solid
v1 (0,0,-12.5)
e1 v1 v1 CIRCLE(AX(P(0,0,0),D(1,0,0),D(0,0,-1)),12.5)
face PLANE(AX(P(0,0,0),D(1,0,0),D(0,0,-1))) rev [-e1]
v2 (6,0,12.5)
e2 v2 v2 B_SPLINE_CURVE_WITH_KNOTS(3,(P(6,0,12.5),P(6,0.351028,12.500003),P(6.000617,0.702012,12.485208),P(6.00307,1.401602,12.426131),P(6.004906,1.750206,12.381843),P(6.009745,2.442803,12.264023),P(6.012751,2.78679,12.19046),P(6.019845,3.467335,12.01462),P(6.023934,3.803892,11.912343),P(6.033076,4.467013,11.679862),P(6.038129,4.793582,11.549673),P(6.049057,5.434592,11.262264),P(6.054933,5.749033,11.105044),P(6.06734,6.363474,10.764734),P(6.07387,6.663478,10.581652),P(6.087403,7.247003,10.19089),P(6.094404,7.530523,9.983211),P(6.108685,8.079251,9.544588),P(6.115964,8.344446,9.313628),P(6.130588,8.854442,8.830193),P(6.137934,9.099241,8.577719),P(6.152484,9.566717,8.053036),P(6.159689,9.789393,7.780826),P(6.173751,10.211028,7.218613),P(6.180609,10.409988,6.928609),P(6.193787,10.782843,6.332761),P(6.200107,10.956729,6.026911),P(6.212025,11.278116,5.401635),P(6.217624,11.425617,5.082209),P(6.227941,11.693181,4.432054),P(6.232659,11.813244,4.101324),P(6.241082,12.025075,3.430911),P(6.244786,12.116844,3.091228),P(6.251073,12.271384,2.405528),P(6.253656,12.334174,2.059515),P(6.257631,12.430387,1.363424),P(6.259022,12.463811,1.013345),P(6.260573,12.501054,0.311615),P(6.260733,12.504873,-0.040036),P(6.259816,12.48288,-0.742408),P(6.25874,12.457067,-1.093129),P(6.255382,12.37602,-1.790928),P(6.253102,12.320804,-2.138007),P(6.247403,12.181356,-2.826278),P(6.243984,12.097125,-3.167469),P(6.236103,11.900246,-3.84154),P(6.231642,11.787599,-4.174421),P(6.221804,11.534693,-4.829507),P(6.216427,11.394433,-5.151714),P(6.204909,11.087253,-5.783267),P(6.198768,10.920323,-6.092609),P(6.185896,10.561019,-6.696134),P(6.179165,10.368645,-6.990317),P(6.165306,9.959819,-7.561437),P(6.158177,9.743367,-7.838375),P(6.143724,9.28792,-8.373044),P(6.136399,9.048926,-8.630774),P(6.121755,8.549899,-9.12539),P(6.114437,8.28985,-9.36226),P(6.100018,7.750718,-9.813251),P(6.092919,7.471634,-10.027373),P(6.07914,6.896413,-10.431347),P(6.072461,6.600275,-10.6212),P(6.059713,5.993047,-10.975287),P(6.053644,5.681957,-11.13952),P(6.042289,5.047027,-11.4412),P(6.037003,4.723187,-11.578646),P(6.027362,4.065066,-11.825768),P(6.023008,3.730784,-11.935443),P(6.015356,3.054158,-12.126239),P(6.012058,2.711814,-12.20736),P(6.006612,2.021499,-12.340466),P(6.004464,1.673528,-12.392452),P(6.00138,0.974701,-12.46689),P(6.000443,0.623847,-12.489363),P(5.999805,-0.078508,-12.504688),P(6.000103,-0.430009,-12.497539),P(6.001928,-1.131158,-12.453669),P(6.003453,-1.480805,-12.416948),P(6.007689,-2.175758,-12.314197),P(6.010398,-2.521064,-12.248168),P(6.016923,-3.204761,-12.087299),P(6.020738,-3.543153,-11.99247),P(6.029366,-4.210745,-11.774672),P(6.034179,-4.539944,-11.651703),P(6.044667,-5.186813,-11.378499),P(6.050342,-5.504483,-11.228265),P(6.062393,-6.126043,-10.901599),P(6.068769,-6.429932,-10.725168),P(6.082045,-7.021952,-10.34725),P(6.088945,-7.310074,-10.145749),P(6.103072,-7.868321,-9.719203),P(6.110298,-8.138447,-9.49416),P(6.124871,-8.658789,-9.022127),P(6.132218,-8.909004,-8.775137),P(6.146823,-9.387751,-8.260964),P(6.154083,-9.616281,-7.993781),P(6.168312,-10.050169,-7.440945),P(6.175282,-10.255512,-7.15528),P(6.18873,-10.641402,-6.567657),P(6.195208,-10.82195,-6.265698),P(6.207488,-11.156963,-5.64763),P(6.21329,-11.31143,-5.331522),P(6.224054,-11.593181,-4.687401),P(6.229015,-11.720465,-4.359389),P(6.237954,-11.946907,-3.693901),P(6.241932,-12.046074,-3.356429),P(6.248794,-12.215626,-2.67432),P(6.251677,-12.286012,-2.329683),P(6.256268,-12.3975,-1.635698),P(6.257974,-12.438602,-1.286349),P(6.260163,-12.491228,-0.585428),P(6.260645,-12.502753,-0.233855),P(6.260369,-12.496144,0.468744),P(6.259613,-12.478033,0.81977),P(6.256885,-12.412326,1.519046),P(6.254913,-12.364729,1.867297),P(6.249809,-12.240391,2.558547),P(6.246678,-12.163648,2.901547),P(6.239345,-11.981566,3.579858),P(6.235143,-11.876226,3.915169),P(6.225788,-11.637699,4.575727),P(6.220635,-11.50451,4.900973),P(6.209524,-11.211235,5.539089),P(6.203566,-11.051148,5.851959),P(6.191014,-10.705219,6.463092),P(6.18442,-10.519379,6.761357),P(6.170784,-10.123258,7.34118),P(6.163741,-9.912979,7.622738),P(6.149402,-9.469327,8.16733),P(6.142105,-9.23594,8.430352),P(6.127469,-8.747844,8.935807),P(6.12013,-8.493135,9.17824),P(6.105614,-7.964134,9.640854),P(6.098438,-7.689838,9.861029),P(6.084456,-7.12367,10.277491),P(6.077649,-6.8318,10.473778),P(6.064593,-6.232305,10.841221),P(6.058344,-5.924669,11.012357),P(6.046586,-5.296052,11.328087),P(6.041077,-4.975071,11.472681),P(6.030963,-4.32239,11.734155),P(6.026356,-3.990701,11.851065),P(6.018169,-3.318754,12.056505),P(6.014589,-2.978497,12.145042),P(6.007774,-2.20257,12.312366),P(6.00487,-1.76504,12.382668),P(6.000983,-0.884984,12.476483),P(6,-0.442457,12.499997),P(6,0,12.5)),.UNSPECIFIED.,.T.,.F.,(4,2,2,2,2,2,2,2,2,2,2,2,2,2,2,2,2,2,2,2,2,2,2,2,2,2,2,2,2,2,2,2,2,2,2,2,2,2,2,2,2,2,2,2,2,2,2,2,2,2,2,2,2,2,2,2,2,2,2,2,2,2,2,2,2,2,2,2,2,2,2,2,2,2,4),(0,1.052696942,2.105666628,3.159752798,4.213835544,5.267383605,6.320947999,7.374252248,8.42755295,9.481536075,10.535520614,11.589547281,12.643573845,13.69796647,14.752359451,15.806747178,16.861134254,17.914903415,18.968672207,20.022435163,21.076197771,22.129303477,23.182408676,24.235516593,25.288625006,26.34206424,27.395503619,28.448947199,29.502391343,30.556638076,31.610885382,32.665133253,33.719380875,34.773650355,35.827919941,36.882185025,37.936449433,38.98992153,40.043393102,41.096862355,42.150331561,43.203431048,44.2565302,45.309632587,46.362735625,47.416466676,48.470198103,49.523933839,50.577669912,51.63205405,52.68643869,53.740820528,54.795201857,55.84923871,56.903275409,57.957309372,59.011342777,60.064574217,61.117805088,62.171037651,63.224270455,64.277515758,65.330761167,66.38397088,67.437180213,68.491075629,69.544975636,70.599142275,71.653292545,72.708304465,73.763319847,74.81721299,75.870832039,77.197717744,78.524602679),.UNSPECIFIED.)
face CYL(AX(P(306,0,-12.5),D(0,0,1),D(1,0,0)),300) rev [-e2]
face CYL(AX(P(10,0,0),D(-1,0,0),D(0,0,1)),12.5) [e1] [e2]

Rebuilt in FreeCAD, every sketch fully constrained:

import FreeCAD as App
import Part
import Sketcher

doc = App.newDocument("Part")
params = doc.addObject("Spreadsheet::Sheet", "Params")
for row, (alias, value) in enumerate([
    ("sketch1_diameter", "25 mm"),
    ("pad1_length", "10 mm"),
    ("sketch2_diameter", "600 mm"),
], start=1):
    params.set(f"A{row}", alias)
    params.set(f"B{row}", "=" + value)
    params.setAlias(f"B{row}", alias)

body = doc.addObject("PartDesign::Body", "Body")

sketch1 = body.newObject("Sketcher::SketchObject", "Sketch")
sketch1.AttachmentSupport = (doc.getObject("YZ_Plane"), [""])
sketch1.MapMode = "FlatFace"
sketch1.addGeometry(Part.Circle(App.Vector(0, 0, 0), App.Vector(0, 0, 1), 12), False)
sketch1.addConstraint(Sketcher.Constraint("Coincident", 0, 3, -1, 1))
sketch1.addConstraint(Sketcher.Constraint("Diameter", 0, 25.0))
sketch1.setExpression("Constraints[1]", "Params.sketch1_diameter")
pad1 = body.newObject("PartDesign::Pad", "Pad")
pad1.Profile = sketch1
pad1.setExpression("Length", "Params.pad1_length")

sketch2 = body.newObject("Sketcher::SketchObject", "Sketch001")
sketch2.AttachmentSupport = (doc.getObject("XY_Plane"), [""])
sketch2.MapMode = "FlatFace"
sketch2.addGeometry(Part.Circle(App.Vector(306, 0, 0), App.Vector(0, 0, 1), 300), False)
sketch2.addConstraint(Sketcher.Constraint("PointOnObject", 0, 3, -1))
sketch2.addConstraint(Sketcher.Constraint("Diameter", 0, 600.0))
sketch2.addConstraint(Sketcher.Constraint("DistanceX", -1, 1, 0, 3, 306.0))
sketch2.setExpression("Constraints[1]", "Params.sketch2_diameter")
pocket1 = body.newObject("PartDesign::Pocket", "Pocket")
pocket1.Profile = sketch2
pocket1.Type = "ThroughAll"
pocket1.Midplane = True

doc.recompute()
